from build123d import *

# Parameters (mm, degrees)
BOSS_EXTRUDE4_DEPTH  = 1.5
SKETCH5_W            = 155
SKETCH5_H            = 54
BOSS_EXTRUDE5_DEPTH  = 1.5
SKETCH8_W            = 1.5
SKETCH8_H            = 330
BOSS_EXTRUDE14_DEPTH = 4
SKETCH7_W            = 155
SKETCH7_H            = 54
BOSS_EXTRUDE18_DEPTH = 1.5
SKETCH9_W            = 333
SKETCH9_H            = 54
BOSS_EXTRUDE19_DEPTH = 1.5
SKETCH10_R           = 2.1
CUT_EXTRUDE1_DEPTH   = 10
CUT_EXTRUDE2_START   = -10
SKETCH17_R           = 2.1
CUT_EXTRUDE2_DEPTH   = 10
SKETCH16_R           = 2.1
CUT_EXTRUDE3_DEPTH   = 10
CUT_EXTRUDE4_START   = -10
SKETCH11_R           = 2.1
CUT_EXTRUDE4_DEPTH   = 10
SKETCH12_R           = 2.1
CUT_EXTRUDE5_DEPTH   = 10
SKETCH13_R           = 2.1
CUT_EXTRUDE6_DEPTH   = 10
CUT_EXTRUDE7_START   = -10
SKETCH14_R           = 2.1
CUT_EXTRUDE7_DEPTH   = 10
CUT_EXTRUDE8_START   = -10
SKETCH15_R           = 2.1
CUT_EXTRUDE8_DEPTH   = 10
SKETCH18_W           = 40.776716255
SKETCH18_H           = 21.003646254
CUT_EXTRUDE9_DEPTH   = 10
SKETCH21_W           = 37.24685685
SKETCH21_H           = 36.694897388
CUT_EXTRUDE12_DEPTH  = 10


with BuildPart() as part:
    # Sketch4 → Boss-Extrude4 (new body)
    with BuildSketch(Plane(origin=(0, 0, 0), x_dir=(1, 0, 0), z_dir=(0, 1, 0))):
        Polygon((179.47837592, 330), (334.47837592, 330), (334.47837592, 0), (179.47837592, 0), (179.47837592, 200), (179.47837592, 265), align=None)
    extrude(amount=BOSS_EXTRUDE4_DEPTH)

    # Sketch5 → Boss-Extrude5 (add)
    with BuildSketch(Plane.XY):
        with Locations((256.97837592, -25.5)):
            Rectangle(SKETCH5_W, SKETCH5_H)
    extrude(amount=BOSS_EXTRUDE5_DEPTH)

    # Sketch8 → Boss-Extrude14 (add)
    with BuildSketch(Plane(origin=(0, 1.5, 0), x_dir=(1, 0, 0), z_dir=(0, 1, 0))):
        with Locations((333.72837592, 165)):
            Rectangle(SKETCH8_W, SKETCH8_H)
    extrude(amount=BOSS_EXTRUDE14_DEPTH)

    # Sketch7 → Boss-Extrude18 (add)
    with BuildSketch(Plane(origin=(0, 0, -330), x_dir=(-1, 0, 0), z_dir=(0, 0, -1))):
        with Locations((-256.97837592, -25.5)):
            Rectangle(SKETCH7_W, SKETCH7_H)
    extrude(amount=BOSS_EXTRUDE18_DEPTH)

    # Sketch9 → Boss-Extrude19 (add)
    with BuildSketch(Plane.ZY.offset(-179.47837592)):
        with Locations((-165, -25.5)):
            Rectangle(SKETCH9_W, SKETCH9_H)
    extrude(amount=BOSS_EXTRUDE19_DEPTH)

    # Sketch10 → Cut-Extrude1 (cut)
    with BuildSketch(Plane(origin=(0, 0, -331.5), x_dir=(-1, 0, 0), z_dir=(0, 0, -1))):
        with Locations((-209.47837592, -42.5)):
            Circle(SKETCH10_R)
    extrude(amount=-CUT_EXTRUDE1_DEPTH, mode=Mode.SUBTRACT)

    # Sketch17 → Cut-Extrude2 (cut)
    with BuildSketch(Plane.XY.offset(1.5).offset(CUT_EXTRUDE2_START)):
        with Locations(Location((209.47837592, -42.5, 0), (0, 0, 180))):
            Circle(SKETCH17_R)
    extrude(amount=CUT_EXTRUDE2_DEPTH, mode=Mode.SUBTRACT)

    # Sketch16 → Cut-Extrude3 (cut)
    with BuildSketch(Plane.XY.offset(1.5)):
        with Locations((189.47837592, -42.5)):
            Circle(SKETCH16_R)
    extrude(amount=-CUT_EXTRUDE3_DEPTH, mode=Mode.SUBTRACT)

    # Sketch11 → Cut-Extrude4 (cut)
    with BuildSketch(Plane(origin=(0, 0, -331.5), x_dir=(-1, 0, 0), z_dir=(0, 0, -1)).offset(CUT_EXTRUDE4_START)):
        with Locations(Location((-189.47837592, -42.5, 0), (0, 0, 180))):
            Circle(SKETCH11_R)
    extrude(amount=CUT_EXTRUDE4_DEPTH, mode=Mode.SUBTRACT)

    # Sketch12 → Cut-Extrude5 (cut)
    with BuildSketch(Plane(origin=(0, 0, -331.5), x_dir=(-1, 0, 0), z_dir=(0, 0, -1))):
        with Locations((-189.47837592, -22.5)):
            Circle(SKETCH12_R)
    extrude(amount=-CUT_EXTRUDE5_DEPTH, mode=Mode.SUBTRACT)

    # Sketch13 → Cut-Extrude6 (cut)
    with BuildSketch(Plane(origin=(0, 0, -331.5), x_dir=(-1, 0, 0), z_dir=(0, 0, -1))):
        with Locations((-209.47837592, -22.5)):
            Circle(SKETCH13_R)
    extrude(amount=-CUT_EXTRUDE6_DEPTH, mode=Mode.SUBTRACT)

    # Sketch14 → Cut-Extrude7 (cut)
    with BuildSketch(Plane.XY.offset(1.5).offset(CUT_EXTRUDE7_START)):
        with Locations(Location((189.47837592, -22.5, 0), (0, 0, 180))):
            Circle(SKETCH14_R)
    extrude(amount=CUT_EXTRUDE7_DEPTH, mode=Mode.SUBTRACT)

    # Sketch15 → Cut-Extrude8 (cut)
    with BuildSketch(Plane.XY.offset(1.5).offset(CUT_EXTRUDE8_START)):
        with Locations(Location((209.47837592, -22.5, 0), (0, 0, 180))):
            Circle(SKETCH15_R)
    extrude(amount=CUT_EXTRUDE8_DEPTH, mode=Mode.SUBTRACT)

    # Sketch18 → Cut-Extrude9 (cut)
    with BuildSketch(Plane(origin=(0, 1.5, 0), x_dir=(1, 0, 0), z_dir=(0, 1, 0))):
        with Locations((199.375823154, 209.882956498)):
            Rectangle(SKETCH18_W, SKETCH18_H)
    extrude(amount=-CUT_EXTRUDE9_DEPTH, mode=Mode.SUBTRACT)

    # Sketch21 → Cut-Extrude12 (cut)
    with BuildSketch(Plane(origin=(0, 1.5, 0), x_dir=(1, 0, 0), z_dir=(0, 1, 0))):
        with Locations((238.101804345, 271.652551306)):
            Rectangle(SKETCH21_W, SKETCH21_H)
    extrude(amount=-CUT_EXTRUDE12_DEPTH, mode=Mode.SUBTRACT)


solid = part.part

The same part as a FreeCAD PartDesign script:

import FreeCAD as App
import Part
import Sketcher
from FreeCAD import Vector
Q = App.Units.Quantity


def add_polygon(sketch, points):
    """Adds a closed chain of lines whose ends are joined by coincident constraints."""
    first, n = sketch.GeometryCount, len(points)
    for a, b in zip(points, points[1:] + points[:1]):
        sketch.addGeometry(Part.LineSegment(App.Vector(*a, 0), App.Vector(*b, 0)), False)
    for i in range(n):
        sketch.addConstraint(Sketcher.Constraint("Coincident", first + i, 2, first + (i + 1) % n, 1))

doc = App.newDocument("Part")
body = doc.addObject("PartDesign::Body", "Body")

# Sketch on XZ plane
sketch1 = doc.addObject("Sketcher::SketchObject", "Sketch")
body.addObject(sketch1)
sketch1.AttachmentSupport = (doc.XZ_Plane, [""])
sketch1.MapMode = "FlatFace"
add_polygon(sketch1, [(334, -330), (179, -330), (179, 0), (334, 0)])  # lines 0-3
sketch1.addConstraint([
    Sketcher.Constraint("Horizontal", 0),
    Sketcher.Constraint("Vertical", 1),
    Sketcher.Constraint("Horizontal", 2),
    Sketcher.Constraint("Vertical", 3),
    Sketcher.Constraint("PointOnObject", 1, 2, -1),
    Sketcher.Constraint("DistanceX", 0, 2, 0, 1, Q("155 mm")),
    Sketcher.Constraint("DistanceY", 1, 1, 1, 2, Q("330 mm")),
    Sketcher.Constraint("DistanceX", -1, 1, 0, 2, Q("179.478376 mm")),
])
pad1 = doc.addObject("PartDesign::Pad", "Pad")
body.addObject(pad1)
pad1.Profile = sketch1
pad1.Length = 1.5
pad1.Reversed = True

# Sketch on XY plane
sketch2 = doc.addObject("Sketcher::SketchObject", "Sketch001")
body.addObject(sketch2)
sketch2.AttachmentSupport = (doc.XY_Plane, [""])
sketch2.MapMode = "FlatFace"
add_polygon(sketch2, [(179, 2), (179, -52), (334, -52), (334, 2)])  # lines 0-3
sketch2.addConstraint([
    Sketcher.Constraint("Vertical", 0),
    Sketcher.Constraint("Horizontal", 1),
    Sketcher.Constraint("Vertical", 2),
    Sketcher.Constraint("Horizontal", 3),
    Sketcher.Constraint("DistanceX", 1, 1, 1, 2, Q("155 mm")),
    Sketcher.Constraint("DistanceY", 0, 2, 0, 1, Q("54 mm")),
    Sketcher.Constraint("DistanceY", 0, 2, -1, 1, Q("52.5 mm")),
    Sketcher.Constraint("DistanceX", -1, 1, 0, 2, Q("179.478376 mm")),
])
pad2 = doc.addObject("PartDesign::Pad", "Pad001")
body.addObject(pad2)
pad2.Profile = sketch2
pad2.Length = 1.5

# Sketch on XZ plane
sketch3 = doc.addObject("Sketcher::SketchObject", "Sketch002")
body.addObject(sketch3)
sketch3.AttachmentSupport = (doc.XZ_Plane, [""])
sketch3.MapMode = "FlatFace"
sketch3.AttachmentOffset = App.Placement(Vector(0, 0, -1.5), App.Rotation())
add_polygon(sketch3, [(333, -330), (333, 0), (334.5, 0), (334.5, -330)])  # lines 0-3
sketch3.addConstraint([
    Sketcher.Constraint("Vertical", 0),
    Sketcher.Constraint("Horizontal", 1),
    Sketcher.Constraint("Vertical", 2),
    Sketcher.Constraint("Horizontal", 3),
    Sketcher.Constraint("PointOnObject", 0, 2, -1),
    Sketcher.Constraint("DistanceY", 0, 1, 0, 2, Q("330 mm")),
    Sketcher.Constraint("DistanceX", 1, 1, 1, 2, Q("1.5 mm")),
    Sketcher.Constraint("DistanceX", -1, 1, 0, 2, Q("332.978376 mm")),
])
pad3 = doc.addObject("PartDesign::Pad", "Pad002")
body.addObject(pad3)
pad3.Profile = sketch3
pad3.Length = 4
pad3.Reversed = True

# Sketch on XY plane
sketch4 = doc.addObject("Sketcher::SketchObject", "Sketch003")
body.addObject(sketch4)
sketch4.AttachmentSupport = (doc.XY_Plane, [""])
sketch4.MapMode = "FlatFace"
sketch4.AttachmentOffset = App.Placement(Vector(0, 0, -330), App.Rotation())
add_polygon(sketch4, [(334, 2), (334, -52), (179, -52), (179, 2)])  # lines 0-3
sketch4.addConstraint([
    Sketcher.Constraint("Vertical", 0),
    Sketcher.Constraint("Horizontal", 1),
    Sketcher.Constraint("Vertical", 2),
    Sketcher.Constraint("Horizontal", 3),
    Sketcher.Constraint("DistanceX", 1, 2, 1, 1, Q("155 mm")),
    Sketcher.Constraint("DistanceY", 0, 2, 0, 1, Q("54 mm")),
    Sketcher.Constraint("DistanceY", 0, 2, -1, 1, Q("52.5 mm")),
    Sketcher.Constraint("DistanceX", -1, 1, 0, 2, Q("334.478376 mm")),
])
pad4 = doc.addObject("PartDesign::Pad", "Pad003")
body.addObject(pad4)
pad4.Profile = sketch4
pad4.Length = 1.5
pad4.Reversed = True

# Sketch on YZ plane
sketch5 = doc.addObject("Sketcher::SketchObject", "Sketch004")
body.addObject(sketch5)
sketch5.AttachmentSupport = (doc.YZ_Plane, [""])
sketch5.MapMode = "FlatFace"
sketch5.AttachmentOffset = App.Placement(Vector(0, 0, 179.478376), App.Rotation())
add_polygon(sketch5, [(2, -332), (-52, -332), (-52, 2), (2, 2)])  # lines 0-3
sketch5.addConstraint([
    Sketcher.Constraint("Horizontal", 0),
    Sketcher.Constraint("Vertical", 1),
    Sketcher.Constraint("Horizontal", 2),
    Sketcher.Constraint("Vertical", 3),
    Sketcher.Constraint("DistanceX", 0, 2, 0, 1, Q("54 mm")),
    Sketcher.Constraint("DistanceY", 1, 1, 1, 2, Q("333 mm")),
    Sketcher.Constraint("DistanceX", 0, 2, -1, 1, Q("52.5 mm")),
    Sketcher.Constraint("DistanceY", 0, 2, -1, 1, Q("331.5 mm")),
])
pad5 = doc.addObject("PartDesign::Pad", "Pad004")
body.addObject(pad5)
pad5.Profile = sketch5
pad5.Length = 1.5
pad5.Reversed = True

# Sketch on XY plane
sketch6 = doc.addObject("Sketcher::SketchObject", "Sketch005")
body.addObject(sketch6)
sketch6.AttachmentSupport = (doc.XY_Plane, [""])
sketch6.MapMode = "FlatFace"
sketch6.AttachmentOffset = App.Placement(Vector(0, 0, -331.5), App.Rotation())
sketch6.addGeometry(Part.Circle(Vector(209.5, -42.5, 0), Vector(0, 0, 1), 2.1), False)
sketch6.addConstraint([
    Sketcher.Constraint("Diameter", 0, Q("4.2 mm")),
    Sketcher.Constraint("DistanceY", 0, 3, -1, 1, Q("42.5 mm")),
    Sketcher.Constraint("DistanceX", -1, 1, 0, 3, Q("209.478376 mm")),
])
pocket1 = doc.addObject("PartDesign::Pocket", "Pocket")
body.addObject(pocket1)
pocket1.Profile = sketch6
pocket1.Length = 10
pocket1.Reversed = True

# Sketch on XY plane
sketch7 = doc.addObject("Sketcher::SketchObject", "Sketch006")
body.addObject(sketch7)
sketch7.AttachmentSupport = (doc.XY_Plane, [""])
sketch7.MapMode = "FlatFace"
sketch7.AttachmentOffset = App.Placement(Vector(0, 0, -8.5), App.Rotation())
sketch7.addGeometry(Part.Circle(Vector(209.5, -42.5, 0), Vector(0, 0, 1), 2.1), False)
sketch7.addConstraint([
    Sketcher.Constraint("Diameter", 0, Q("4.2 mm")),
    Sketcher.Constraint("DistanceY", 0, 3, -1, 1, Q("42.5 mm")),
    Sketcher.Constraint("DistanceX", -1, 1, 0, 3, Q("209.478376 mm")),
])
pocket2 = doc.addObject("PartDesign::Pocket", "Pocket001")
body.addObject(pocket2)
pocket2.Profile = sketch7
pocket2.Length = 10
pocket2.Reversed = True

# Sketch on XY plane
sketch8 = doc.addObject("Sketcher::SketchObject", "Sketch007")
body.addObject(sketch8)
sketch8.AttachmentSupport = (doc.XY_Plane, [""])
sketch8.MapMode = "FlatFace"
sketch8.AttachmentOffset = App.Placement(Vector(0, 0, 1.5), App.Rotation())
sketch8.addGeometry(Part.Circle(Vector(189.5, -42.5, 0), Vector(0, 0, 1), 2.1), False)
sketch8.addConstraint([
    Sketcher.Constraint("Diameter", 0, Q("4.2 mm")),
    Sketcher.Constraint("DistanceY", 0, 3, -1, 1, Q("42.5 mm")),
    Sketcher.Constraint("DistanceX", -1, 1, 0, 3, Q("189.478376 mm")),
])
pocket3 = doc.addObject("PartDesign::Pocket", "Pocket002")
body.addObject(pocket3)
pocket3.Profile = sketch8
pocket3.Length = 10

# Sketch on XY plane
sketch9 = doc.addObject("Sketcher::SketchObject", "Sketch008")
body.addObject(sketch9)
sketch9.AttachmentSupport = (doc.XY_Plane, [""])
sketch9.MapMode = "FlatFace"
sketch9.AttachmentOffset = App.Placement(Vector(0, 0, -321.5), App.Rotation())
sketch9.addGeometry(Part.Circle(Vector(189.5, -42.5, 0), Vector(0, 0, 1), 2.1), False)
sketch9.addConstraint([
    Sketcher.Constraint("Diameter", 0, Q("4.2 mm")),
    Sketcher.Constraint("DistanceY", 0, 3, -1, 1, Q("42.5 mm")),
    Sketcher.Constraint("DistanceX", -1, 1, 0, 3, Q("189.478376 mm")),
])
pocket4 = doc.addObject("PartDesign::Pocket", "Pocket003")
body.addObject(pocket4)
pocket4.Profile = sketch9
pocket4.Length = 10

# Sketch on XY plane
sketch10 = doc.addObject("Sketcher::SketchObject", "Sketch009")
body.addObject(sketch10)
sketch10.AttachmentSupport = (doc.XY_Plane, [""])
sketch10.MapMode = "FlatFace"
sketch10.AttachmentOffset = App.Placement(Vector(0, 0, -331.5), App.Rotation())
sketch10.addGeometry(Part.Circle(Vector(189.5, -22.5, 0), Vector(0, 0, 1), 2.1), False)
sketch10.addConstraint([
    Sketcher.Constraint("Diameter", 0, Q("4.2 mm")),
    Sketcher.Constraint("DistanceY", 0, 3, -1, 1, Q("22.5 mm")),
    Sketcher.Constraint("DistanceX", -1, 1, 0, 3, Q("189.478376 mm")),
])
pocket5 = doc.addObject("PartDesign::Pocket", "Pocket004")
body.addObject(pocket5)
pocket5.Profile = sketch10
pocket5.Length = 10
pocket5.Reversed = True

# Sketch on XY plane
sketch11 = doc.addObject("Sketcher::SketchObject", "Sketch010")
body.addObject(sketch11)
sketch11.AttachmentSupport = (doc.XY_Plane, [""])
sketch11.MapMode = "FlatFace"
sketch11.AttachmentOffset = App.Placement(Vector(0, 0, -331.5), App.Rotation())
sketch11.addGeometry(Part.Circle(Vector(209.5, -22.5, 0), Vector(0, 0, 1), 2.1), False)
sketch11.addConstraint([
    Sketcher.Constraint("Diameter", 0, Q("4.2 mm")),
    Sketcher.Constraint("DistanceY", 0, 3, -1, 1, Q("22.5 mm")),
    Sketcher.Constraint("DistanceX", -1, 1, 0, 3, Q("209.478376 mm")),
])
pocket6 = doc.addObject("PartDesign::Pocket", "Pocket005")
body.addObject(pocket6)
pocket6.Profile = sketch11
pocket6.Length = 10
pocket6.Reversed = True

# Sketch on XY plane
sketch12 = doc.addObject("Sketcher::SketchObject", "Sketch011")
body.addObject(sketch12)
sketch12.AttachmentSupport = (doc.XY_Plane, [""])
sketch12.MapMode = "FlatFace"
sketch12.AttachmentOffset = App.Placement(Vector(0, 0, -8.5), App.Rotation())
sketch12.addGeometry(Part.Circle(Vector(189.5, -22.5, 0), Vector(0, 0, 1), 2.1), False)
sketch12.addConstraint([
    Sketcher.Constraint("Diameter", 0, Q("4.2 mm")),
    Sketcher.Constraint("DistanceY", 0, 3, -1, 1, Q("22.5 mm")),
    Sketcher.Constraint("DistanceX", -1, 1, 0, 3, Q("189.478376 mm")),
])
pocket7 = doc.addObject("PartDesign::Pocket", "Pocket006")
body.addObject(pocket7)
pocket7.Profile = sketch12
pocket7.Length = 10
pocket7.Reversed = True

# Sketch on XY plane
sketch13 = doc.addObject("Sketcher::SketchObject", "Sketch012")
body.addObject(sketch13)
sketch13.AttachmentSupport = (doc.XY_Plane, [""])
sketch13.MapMode = "FlatFace"
sketch13.AttachmentOffset = App.Placement(Vector(0, 0, -8.5), App.Rotation())
sketch13.addGeometry(Part.Circle(Vector(209.5, -22.5, 0), Vector(0, 0, 1), 2.1), False)
sketch13.addConstraint([
    Sketcher.Constraint("Diameter", 0, Q("4.2 mm")),
    Sketcher.Constraint("DistanceY", 0, 3, -1, 1, Q("22.5 mm")),
    Sketcher.Constraint("DistanceX", -1, 1, 0, 3, Q("209.478376 mm")),
])
pocket8 = doc.addObject("PartDesign::Pocket", "Pocket007")
body.addObject(pocket8)
pocket8.Profile = sketch13
pocket8.Length = 10
pocket8.Reversed = True

# Sketch on XZ plane
sketch14 = doc.addObject("Sketcher::SketchObject", "Sketch013")
body.addObject(sketch14)
sketch14.AttachmentSupport = (doc.XZ_Plane, [""])
sketch14.MapMode = "FlatFace"
sketch14.AttachmentOffset = App.Placement(Vector(0, 0, -1.5), App.Rotation())
add_polygon(sketch14, [(179, -220), (179, -199), (220, -199), (220, -220)])  # lines 0-3
sketch14.addConstraint([
    Sketcher.Constraint("Vertical", 0),
    Sketcher.Constraint("Horizontal", 1),
    Sketcher.Constraint("Vertical", 2),
    Sketcher.Constraint("Horizontal", 3),
    Sketcher.Constraint("DistanceX", 1, 1, 1, 2, Q("40.776716 mm")),
    Sketcher.Constraint("DistanceY", 0, 1, 0, 2, Q("21.003646 mm")),
    Sketcher.Constraint("DistanceX", -1, 1, 1, 2, Q("219.764181 mm")),
    Sketcher.Constraint("DistanceY", 2, 2, -1, 1, Q("220.38478 mm")),
])
pocket9 = doc.addObject("PartDesign::Pocket", "Pocket008")
body.addObject(pocket9)
pocket9.Profile = sketch14
pocket9.Length = 10
pocket9.Reversed = True

# Sketch on XZ plane
sketch15 = doc.addObject("Sketcher::SketchObject", "Sketch014")
body.addObject(sketch15)
sketch15.AttachmentSupport = (doc.XZ_Plane, [""])
sketch15.MapMode = "FlatFace"
sketch15.AttachmentOffset = App.Placement(Vector(0, 0, -1.5), App.Rotation())
add_polygon(sketch15, [(219, -290), (219, -253), (257, -253), (257, -290)])  # lines 0-3
sketch15.addConstraint([
    Sketcher.Constraint("Vertical", 0),
    Sketcher.Constraint("Horizontal", 1),
    Sketcher.Constraint("Vertical", 2),
    Sketcher.Constraint("Horizontal", 3),
    Sketcher.Constraint("DistanceY", 2, 2, -1, 1, Q("290 mm")),
    Sketcher.Constraint("DistanceX", 1, 1, 1, 2, Q("37.246857 mm")),
    Sketcher.Constraint("DistanceY", 0, 1, 0, 2, Q("36.694897 mm")),
    Sketcher.Constraint("DistanceX", -1, 1, 0, 2, Q("219.478376 mm")),
])
pocket10 = doc.addObject("PartDesign::Pocket", "Pocket009")
body.addObject(pocket10)
pocket10.Profile = sketch15
pocket10.Length = 10
pocket10.Reversed = True

doc.recompute()
